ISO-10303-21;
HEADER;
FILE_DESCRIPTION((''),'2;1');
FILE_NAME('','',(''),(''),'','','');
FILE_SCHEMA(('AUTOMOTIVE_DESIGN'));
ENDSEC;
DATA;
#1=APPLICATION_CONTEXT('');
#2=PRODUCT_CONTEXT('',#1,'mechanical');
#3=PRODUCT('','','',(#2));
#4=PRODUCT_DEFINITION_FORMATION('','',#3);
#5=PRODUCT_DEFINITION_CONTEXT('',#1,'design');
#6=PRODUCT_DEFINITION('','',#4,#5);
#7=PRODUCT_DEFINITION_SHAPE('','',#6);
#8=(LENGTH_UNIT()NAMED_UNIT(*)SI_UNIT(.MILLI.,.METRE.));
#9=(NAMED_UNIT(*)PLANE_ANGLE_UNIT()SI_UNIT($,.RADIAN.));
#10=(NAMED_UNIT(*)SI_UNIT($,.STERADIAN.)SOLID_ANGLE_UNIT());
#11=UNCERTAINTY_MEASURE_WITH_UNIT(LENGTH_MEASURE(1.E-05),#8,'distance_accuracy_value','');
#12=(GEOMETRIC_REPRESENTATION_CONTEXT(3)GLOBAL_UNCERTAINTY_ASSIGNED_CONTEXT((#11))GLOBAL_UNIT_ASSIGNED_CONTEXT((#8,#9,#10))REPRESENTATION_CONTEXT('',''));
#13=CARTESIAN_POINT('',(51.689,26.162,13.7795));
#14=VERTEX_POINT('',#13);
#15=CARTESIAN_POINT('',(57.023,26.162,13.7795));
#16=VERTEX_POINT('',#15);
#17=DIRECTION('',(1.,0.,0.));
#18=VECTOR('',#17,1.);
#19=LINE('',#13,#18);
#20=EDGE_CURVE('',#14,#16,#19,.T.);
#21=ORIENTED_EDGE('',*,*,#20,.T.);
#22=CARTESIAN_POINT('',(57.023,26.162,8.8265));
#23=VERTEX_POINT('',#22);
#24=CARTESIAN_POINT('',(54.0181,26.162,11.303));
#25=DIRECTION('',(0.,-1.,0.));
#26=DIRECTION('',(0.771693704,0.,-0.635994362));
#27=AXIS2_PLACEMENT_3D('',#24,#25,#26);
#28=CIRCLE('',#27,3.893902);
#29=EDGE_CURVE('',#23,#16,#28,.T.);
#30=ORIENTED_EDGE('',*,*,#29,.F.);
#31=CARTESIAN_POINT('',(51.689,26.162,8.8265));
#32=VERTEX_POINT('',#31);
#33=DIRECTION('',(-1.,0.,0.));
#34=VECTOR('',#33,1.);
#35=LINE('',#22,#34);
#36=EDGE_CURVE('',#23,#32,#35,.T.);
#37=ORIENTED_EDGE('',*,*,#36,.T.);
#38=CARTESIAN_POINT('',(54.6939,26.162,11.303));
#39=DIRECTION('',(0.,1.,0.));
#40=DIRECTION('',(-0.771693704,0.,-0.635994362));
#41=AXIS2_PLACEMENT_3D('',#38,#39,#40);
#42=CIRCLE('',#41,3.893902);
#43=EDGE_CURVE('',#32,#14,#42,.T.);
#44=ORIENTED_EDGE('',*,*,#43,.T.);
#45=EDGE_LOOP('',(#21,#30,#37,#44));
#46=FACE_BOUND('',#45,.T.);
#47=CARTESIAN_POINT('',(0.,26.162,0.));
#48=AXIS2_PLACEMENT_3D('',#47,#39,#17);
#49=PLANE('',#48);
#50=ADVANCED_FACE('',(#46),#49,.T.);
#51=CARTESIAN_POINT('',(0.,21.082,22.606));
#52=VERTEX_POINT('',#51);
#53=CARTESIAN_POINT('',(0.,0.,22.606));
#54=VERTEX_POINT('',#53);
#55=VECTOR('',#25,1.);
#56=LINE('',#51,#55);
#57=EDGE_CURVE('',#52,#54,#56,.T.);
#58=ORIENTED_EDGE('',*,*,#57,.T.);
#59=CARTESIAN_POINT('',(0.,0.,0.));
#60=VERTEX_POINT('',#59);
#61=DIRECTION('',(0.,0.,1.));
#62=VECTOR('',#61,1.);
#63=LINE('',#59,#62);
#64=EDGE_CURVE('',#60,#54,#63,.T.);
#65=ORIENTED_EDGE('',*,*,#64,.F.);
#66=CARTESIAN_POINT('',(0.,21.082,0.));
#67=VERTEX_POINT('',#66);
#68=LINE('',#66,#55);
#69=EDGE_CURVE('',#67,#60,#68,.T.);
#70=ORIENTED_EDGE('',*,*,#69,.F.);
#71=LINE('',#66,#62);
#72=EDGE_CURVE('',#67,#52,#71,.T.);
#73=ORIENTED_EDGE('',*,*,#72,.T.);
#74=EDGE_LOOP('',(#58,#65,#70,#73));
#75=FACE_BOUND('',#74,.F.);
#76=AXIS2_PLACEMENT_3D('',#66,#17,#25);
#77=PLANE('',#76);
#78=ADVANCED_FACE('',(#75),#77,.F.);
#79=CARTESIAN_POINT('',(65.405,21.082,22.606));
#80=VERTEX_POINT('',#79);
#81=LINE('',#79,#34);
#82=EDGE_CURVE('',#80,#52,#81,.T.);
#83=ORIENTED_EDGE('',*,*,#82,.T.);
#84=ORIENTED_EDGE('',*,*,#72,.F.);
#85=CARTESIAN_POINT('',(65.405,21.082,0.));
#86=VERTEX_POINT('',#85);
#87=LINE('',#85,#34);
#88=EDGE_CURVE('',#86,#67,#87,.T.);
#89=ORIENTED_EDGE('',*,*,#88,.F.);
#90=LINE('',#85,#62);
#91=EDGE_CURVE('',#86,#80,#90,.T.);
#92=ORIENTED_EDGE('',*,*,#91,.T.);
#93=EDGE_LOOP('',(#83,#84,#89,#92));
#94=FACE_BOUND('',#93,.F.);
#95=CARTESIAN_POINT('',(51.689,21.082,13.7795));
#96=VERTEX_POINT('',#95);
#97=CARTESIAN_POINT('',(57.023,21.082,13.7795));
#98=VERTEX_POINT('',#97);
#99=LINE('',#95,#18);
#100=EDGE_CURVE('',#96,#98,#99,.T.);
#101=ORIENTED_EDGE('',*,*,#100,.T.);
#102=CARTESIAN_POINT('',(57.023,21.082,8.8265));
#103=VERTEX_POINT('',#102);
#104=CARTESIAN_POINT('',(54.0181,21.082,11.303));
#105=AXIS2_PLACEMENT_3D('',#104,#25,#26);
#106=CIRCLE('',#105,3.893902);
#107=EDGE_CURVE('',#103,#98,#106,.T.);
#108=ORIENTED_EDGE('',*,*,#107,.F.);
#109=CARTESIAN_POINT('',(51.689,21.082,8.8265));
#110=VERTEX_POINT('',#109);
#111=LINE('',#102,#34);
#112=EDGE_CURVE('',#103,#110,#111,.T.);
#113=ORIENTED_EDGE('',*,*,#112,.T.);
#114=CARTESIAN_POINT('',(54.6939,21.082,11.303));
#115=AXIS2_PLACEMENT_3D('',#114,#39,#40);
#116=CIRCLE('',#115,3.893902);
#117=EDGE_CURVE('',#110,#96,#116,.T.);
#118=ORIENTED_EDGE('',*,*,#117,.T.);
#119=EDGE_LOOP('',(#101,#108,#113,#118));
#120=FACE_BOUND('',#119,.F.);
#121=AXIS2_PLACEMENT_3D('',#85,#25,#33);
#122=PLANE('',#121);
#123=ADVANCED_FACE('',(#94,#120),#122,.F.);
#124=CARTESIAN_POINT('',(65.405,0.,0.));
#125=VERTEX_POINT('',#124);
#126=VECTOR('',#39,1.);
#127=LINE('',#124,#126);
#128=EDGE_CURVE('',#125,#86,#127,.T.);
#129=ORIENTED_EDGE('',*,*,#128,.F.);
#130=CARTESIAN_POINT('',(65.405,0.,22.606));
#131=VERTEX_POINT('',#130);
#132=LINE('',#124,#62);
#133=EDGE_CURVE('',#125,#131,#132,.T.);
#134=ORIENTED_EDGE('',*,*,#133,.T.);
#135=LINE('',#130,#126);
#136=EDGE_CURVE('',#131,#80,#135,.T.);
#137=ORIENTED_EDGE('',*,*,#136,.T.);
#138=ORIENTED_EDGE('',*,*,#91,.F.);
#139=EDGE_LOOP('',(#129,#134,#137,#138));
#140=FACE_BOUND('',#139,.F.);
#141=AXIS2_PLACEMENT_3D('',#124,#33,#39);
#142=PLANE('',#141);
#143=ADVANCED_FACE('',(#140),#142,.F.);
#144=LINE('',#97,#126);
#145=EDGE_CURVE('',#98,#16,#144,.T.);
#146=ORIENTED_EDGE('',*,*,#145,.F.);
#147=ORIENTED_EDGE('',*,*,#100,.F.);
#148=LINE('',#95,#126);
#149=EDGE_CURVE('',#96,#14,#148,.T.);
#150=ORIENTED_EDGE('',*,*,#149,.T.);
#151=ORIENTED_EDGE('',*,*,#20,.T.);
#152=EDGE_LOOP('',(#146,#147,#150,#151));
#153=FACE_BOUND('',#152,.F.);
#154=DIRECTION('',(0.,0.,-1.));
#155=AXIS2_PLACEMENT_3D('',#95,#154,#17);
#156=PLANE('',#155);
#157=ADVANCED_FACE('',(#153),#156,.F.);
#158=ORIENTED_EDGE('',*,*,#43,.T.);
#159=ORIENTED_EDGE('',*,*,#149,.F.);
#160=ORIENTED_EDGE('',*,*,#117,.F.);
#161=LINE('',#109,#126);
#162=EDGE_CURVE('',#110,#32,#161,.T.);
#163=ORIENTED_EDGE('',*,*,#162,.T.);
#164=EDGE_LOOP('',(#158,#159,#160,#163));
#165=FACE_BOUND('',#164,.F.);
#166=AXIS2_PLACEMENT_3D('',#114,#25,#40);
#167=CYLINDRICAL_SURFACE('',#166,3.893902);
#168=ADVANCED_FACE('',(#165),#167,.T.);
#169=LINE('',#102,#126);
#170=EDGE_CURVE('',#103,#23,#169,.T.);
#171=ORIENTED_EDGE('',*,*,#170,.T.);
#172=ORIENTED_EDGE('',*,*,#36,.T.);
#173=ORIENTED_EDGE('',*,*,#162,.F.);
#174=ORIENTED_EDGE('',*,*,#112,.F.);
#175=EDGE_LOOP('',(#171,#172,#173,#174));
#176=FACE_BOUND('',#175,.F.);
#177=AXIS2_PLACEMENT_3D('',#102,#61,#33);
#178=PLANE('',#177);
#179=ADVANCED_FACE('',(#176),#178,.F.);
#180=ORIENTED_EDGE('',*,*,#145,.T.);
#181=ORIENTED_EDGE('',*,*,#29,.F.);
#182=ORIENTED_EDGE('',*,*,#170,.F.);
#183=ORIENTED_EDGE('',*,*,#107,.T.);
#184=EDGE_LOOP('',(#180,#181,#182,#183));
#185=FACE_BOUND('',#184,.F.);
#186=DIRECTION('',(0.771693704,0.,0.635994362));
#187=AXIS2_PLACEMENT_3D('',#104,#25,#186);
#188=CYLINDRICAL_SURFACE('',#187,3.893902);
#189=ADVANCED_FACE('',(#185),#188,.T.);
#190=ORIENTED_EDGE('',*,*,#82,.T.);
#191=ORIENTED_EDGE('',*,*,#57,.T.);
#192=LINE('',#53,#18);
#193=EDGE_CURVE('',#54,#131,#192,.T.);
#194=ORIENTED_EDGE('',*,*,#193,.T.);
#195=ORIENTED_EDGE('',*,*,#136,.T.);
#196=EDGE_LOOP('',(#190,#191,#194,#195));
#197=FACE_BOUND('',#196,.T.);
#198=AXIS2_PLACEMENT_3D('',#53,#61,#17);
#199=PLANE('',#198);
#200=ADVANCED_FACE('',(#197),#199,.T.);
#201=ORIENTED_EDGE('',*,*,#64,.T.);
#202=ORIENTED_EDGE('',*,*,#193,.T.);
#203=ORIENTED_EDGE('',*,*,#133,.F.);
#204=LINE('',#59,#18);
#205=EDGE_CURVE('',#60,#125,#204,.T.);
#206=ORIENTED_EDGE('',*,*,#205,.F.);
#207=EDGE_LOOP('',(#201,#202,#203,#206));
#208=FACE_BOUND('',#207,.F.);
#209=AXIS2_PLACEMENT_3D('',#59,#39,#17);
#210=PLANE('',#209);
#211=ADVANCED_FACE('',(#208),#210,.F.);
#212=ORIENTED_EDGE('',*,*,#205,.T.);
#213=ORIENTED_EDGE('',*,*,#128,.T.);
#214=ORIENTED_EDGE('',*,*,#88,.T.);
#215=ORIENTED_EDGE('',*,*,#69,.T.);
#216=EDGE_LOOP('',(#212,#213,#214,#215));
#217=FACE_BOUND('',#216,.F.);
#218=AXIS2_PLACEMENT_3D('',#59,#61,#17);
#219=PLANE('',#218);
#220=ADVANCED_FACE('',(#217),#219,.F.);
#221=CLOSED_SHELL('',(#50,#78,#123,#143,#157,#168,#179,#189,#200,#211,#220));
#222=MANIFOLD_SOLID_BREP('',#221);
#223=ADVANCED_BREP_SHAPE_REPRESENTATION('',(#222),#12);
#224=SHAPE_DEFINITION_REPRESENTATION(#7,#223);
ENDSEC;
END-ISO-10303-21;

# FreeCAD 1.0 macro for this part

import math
import FreeCAD as App
import Part
import Sketcher
Q = App.Units.Quantity


def add_polygon(sketch, points):
    """Adds a closed chain of lines whose ends are joined by coincident constraints."""
    first, n = sketch.GeometryCount, len(points)
    for a, b in zip(points, points[1:] + points[:1]):
        sketch.addGeometry(Part.LineSegment(App.Vector(*a, 0), App.Vector(*b, 0)), False)
    for i in range(n):
        sketch.addConstraint(Sketcher.Constraint("Coincident", first + i, 2, first + (i + 1) % n, 1))

doc = App.newDocument("Part")
params = doc.addObject("Spreadsheet::Sheet", "Params")
for row, (alias, value) in enumerate([
    ("sketch1_height", "0.83 in"),
    ("sketch1_width", "2.575 in"),
    ("pad1_length", "0.89 in"),
    ("sketch2_width", "0.21 in"),
    ("pad2_length", "0.2 in"),
], start=1):
    params.set(f"A{row}", alias)
    params.set(f"B{row}", "=" + value)
    params.setAlias(f"B{row}", alias)

body = doc.addObject("PartDesign::Body", "Body")

# Sketch on XY plane
sketch1 = doc.addObject("Sketcher::SketchObject", "Sketch")
body.addObject(sketch1)
sketch1.AttachmentSupport = (doc.XY_Plane, [""])
sketch1.MapMode = "FlatFace"
add_polygon(sketch1, [(0, 21), (0, 0), (65, 0), (65, 21)])  # lines 0-3
sketch1.addConstraint([
    Sketcher.Constraint("Vertical", 0),
    Sketcher.Constraint("Horizontal", 1),
    Sketcher.Constraint("Vertical", 2),
    Sketcher.Constraint("Horizontal", 3),
    Sketcher.Constraint("Coincident", 0, 2, -1, 1),
    Sketcher.Constraint("DistanceY", 0, 2, 0, 1, Q("0.83 in")),
    Sketcher.Constraint("DistanceX", 1, 1, 1, 2, Q("2.575 in")),
])
sketch1.setExpression("Constraints[9]", "Params.sketch1_height")
sketch1.setExpression("Constraints[10]", "Params.sketch1_width")
pad1 = doc.addObject("PartDesign::Pad", "Pad")
body.addObject(pad1)
pad1.Profile = sketch1
pad1.setExpression("Length", "Params.pad1_length")

# Sketch on XZ plane
sketch2 = doc.addObject("Sketcher::SketchObject", "Sketch001")
body.addObject(sketch2)
sketch2.AttachmentSupport = (doc.XZ_Plane, [""])
sketch2.MapMode = "FlatFace"
sketch2.AttachmentOffset = App.Placement(App.Vector(0, 0, -0.83 * 25.4), App.Rotation())
sketch2.addGeometry([
    Part.ArcOfCircle(Part.Circle(App.Vector(54, 11.3, 0), App.Vector(0, 0, 1), 3.9), math.radians(-39), math.radians(39)),
    Part.LineSegment(App.Vector(57, 8.8, 0), App.Vector(51.7, 8.8, 0)),
    Part.ArcOfCircle(Part.Circle(App.Vector(54.7, 11.3, 0), App.Vector(0, 0, 1), 3.9), math.radians(141), math.radians(219)),
    Part.LineSegment(App.Vector(51.7, 13.8, 0), App.Vector(57, 13.8, 0)),
], False)
sketch2.addConstraint([
    Sketcher.Constraint("Coincident", 0, 1, 1, 1),
    Sketcher.Constraint("Coincident", 1, 2, 2, 2),
    Sketcher.Constraint("Coincident", 2, 1, 3, 1),
    Sketcher.Constraint("Coincident", 3, 2, 0, 2),
    Sketcher.Constraint("Horizontal", 1),
    Sketcher.Constraint("Horizontal", 3),
    Sketcher.Constraint("Equal", 0, 2),
    Sketcher.Constraint("Horizontal", 0, 3, 2, 3),
    Sketcher.Constraint("Vertical", 1, 2, 2, 1),
    Sketcher.Constraint("DistanceX", 1, 2, 1, 1, Q("0.21 in")),
    Sketcher.Constraint("Radius", 0, Q("0.1533 in")),
    Sketcher.Constraint("DistanceY", -1, 1, 0, 3, Q("0.445 in")),
    Sketcher.Constraint("DistanceX", -1, 1, 0, 1, Q("2.245 in")),
    Sketcher.Constraint("DistanceY", 1, 2, 2, 1, Q("0.195 in")),
])
sketch2.setExpression("Constraints[9]", "Params.sketch2_width")
pad2 = doc.addObject("PartDesign::Pad", "Pad001")
body.addObject(pad2)
pad2.Profile = sketch2
pad2.setExpression("Length", "Params.pad2_length")
pad2.Reversed = True

doc.recompute()
